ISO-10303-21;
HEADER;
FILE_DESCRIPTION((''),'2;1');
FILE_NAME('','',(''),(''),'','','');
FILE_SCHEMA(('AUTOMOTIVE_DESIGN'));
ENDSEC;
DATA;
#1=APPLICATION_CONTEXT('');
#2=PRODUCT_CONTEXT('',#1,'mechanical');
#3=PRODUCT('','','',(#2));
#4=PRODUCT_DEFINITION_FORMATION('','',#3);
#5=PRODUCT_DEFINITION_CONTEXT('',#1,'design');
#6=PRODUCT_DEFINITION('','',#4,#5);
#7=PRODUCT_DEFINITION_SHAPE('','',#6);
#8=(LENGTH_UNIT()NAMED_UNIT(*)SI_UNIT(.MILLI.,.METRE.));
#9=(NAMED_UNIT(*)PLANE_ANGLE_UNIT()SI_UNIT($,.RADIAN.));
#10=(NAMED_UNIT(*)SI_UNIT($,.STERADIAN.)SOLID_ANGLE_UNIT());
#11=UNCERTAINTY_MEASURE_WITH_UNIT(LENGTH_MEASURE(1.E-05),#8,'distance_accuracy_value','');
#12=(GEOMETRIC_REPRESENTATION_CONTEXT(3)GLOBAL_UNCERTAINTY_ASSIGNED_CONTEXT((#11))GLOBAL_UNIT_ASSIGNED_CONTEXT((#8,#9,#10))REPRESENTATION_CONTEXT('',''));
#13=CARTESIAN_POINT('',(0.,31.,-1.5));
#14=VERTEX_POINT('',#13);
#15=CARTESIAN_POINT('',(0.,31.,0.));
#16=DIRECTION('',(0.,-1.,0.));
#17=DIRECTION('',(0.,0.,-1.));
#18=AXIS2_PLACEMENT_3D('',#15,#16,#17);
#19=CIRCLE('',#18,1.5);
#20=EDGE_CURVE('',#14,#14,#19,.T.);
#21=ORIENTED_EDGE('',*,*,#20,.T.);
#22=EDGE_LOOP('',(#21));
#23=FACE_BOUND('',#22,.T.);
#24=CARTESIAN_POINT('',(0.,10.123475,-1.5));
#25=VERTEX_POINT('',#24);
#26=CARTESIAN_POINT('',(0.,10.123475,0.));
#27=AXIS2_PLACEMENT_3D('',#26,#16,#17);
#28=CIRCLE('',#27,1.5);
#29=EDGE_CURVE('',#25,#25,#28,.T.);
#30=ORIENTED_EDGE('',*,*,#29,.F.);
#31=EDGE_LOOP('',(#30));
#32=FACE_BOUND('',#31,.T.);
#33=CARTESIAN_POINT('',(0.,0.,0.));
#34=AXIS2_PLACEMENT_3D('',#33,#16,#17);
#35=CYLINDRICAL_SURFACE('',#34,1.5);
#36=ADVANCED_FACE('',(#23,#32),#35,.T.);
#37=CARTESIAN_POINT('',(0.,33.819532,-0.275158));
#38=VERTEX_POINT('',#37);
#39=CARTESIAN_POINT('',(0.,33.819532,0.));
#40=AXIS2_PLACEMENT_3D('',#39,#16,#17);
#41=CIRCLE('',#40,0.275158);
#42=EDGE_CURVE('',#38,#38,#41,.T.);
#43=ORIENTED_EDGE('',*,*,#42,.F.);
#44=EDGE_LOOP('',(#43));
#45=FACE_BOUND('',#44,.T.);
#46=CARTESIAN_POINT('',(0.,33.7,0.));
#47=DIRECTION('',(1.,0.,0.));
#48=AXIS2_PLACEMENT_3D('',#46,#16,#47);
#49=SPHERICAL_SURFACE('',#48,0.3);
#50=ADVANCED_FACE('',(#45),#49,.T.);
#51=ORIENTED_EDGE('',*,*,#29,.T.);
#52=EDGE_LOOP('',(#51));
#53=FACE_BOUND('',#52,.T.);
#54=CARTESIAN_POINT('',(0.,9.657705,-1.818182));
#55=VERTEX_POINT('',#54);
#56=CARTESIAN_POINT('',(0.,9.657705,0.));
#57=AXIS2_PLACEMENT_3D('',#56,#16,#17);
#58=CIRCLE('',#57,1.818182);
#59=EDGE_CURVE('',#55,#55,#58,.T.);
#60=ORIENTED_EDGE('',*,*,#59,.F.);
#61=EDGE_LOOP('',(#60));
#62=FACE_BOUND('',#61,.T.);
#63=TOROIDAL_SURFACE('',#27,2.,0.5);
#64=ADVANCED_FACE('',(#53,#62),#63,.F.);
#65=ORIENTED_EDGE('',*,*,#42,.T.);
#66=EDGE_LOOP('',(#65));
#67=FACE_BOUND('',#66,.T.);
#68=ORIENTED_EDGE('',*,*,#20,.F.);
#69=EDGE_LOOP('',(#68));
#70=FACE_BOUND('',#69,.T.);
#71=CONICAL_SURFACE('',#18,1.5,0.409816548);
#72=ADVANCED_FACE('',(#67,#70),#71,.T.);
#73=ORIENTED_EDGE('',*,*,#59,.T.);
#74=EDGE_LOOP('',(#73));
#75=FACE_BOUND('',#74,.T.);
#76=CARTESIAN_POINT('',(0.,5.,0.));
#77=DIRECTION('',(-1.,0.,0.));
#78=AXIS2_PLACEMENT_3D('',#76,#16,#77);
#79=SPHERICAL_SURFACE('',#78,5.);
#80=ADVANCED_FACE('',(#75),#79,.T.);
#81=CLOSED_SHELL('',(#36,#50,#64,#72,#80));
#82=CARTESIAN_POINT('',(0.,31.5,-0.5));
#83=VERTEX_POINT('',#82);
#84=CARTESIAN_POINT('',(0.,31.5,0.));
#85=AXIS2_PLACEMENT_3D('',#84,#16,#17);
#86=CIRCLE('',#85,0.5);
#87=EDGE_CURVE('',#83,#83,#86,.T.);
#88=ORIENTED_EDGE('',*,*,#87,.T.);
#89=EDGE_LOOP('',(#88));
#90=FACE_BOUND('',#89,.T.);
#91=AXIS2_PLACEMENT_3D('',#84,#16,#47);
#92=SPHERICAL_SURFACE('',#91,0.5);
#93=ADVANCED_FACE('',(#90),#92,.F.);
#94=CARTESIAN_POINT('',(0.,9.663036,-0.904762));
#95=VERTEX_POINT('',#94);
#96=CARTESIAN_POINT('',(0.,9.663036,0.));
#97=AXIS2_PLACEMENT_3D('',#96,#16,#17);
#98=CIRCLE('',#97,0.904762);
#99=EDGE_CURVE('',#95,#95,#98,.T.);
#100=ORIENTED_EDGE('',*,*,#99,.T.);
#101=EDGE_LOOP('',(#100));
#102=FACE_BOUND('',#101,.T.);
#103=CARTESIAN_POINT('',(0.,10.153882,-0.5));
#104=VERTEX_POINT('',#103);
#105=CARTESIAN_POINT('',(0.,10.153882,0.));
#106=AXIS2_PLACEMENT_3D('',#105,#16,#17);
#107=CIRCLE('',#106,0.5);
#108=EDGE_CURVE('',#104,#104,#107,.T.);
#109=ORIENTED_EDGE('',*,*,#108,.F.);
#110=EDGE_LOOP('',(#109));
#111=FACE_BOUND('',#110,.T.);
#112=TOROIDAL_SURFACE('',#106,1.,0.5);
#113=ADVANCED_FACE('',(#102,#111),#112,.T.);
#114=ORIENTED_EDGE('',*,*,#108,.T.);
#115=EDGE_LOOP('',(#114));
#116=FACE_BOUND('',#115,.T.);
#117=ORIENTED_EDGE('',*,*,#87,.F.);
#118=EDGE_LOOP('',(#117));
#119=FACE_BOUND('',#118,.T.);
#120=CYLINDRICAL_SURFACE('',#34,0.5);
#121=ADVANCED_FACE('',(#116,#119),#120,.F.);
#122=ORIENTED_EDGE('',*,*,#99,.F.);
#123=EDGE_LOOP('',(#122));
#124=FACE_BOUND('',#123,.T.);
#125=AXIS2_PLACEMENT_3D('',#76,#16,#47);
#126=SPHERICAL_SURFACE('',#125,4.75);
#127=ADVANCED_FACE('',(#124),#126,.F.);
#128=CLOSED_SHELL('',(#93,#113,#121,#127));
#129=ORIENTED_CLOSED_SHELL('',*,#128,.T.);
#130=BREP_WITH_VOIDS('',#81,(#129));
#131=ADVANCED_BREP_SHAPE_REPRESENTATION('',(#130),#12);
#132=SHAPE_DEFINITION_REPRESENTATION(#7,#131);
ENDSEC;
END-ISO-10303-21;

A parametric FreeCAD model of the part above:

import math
import FreeCAD as App
import Part
import Sketcher
from FreeCAD import Vector

doc = App.newDocument("Part")
params = doc.addObject("Spreadsheet::Sheet", "Params")
for row, (alias, value) in enumerate([
    ("sketch1_radius", "5 mm"),
    ("sketch1_radius2", "0.3 mm"),
    ("sketch1_radius3", "0.5 mm"),
    ("sketch1_height", "2 mm"),
    ("sketch1_radius4", "4.75 mm"),
    ("revolution_angle", "360 deg"),
], start=1):
    params.set(f"A{row}", alias)
    params.set(f"B{row}", "=" + value)
    params.setAlias(f"B{row}", alias)

body = doc.addObject("PartDesign::Body", "Body")

# Sketch on XY plane
sketch1 = body.newObject("Sketcher::SketchObject", "Sketch")
sketch1.AttachmentSupport = (doc.getObject("XY_Plane"), [""])
sketch1.MapMode = "FlatFace"
sketch1.addGeometry([
    Part.LineSegment(Vector(1.5, 31, 0), Vector(0.28, 33.82, 0)),  # 0
    Part.ArcOfCircle(Part.Circle(Vector(0, 33.7, 0), Vector(0, 0, 1), 0.3), math.radians(23), math.radians(90)),  # 1
    Part.LineSegment(Vector(0, 34, 0), Vector(0, 32, 0)),  # 2
    Part.ArcOfCircle(Part.Circle(Vector(0, 31.5, 0), Vector(0, 0, 1), 0.5), math.radians(0), math.radians(90)),  # 3
    Part.LineSegment(Vector(0.5, 31.5, 0), Vector(0.5, 10.15, 0)),  # 4
    Part.ArcOfCircle(Part.Circle(Vector(1, 10.15, 0), Vector(0, 0, 1), 0.5), math.radians(180), math.radians(259)),  # 5
    Part.ArcOfCircle(Part.Circle(Vector(0, 5, 0), Vector(0, 0, 1), 4.75), math.radians(-90), math.radians(79)),  # 6
    Part.LineSegment(Vector(0, 0.25, 0), Vector(0, 0, 0)),  # 7
    Part.ArcOfCircle(Part.Circle(Vector(0, 5, 0), Vector(0, 0, 1), 5), math.radians(-90), math.radians(69)),  # 8
    Part.ArcOfCircle(Part.Circle(Vector(2, 10.12, 0), Vector(0, 0, 1), 0.5), math.radians(180), math.radians(249)),  # 9
    Part.LineSegment(Vector(1.5, 10.12, 0), Vector(1.5, 31, 0)),  # 10
], False)
sketch1.addConstraint([
    Sketcher.Constraint("Tangent", 0, 2, 1, 1),
    Sketcher.Constraint("Coincident", 1, 2, 2, 1),
    Sketcher.Constraint("Coincident", 2, 2, 3, 2),
    Sketcher.Constraint("Tangent", 3, 1, 4, 1),
    Sketcher.Constraint("Tangent", 4, 2, 5, 1),
    Sketcher.Constraint("Tangent", 5, 2, 6, 2),
    Sketcher.Constraint("Coincident", 6, 1, 7, 1),
    Sketcher.Constraint("Coincident", 7, 2, 8, 1),
    Sketcher.Constraint("Tangent", 8, 2, 9, 2),
    Sketcher.Constraint("Tangent", 9, 1, 10, 1),
    Sketcher.Constraint("Coincident", 10, 2, 0, 1),
    Sketcher.Constraint("Vertical", 2),
    Sketcher.Constraint("Vertical", 4),
    Sketcher.Constraint("Vertical", 7),
    Sketcher.Constraint("Vertical", 10),
    Sketcher.Constraint("Coincident", 7, 2, -1, 1),
    Sketcher.Constraint("Coincident", 8, 3, 6, 3),
    Sketcher.Constraint("Equal", 3, 5),
    Sketcher.Constraint("Equal", 5, 9),
    Sketcher.Constraint("PointOnObject", 1, 3, -2),
    Sketcher.Constraint("PointOnObject", 3, 3, -2),
    Sketcher.Constraint("PointOnObject", 6, 3, -2),
    Sketcher.Constraint("PointOnObject", 1, 2, -2),
    Sketcher.Constraint("Radius", 8, 5.0),
    Sketcher.Constraint("Radius", 1, 0.3),
    Sketcher.Constraint("Radius", 3, 0.5),
    Sketcher.Constraint("DistanceY", 2, 2, 2, 1, 2.0),
    Sketcher.Constraint("Radius", 6, 4.75),
    Sketcher.Constraint("DistanceX", -1, 1, 9, 3, 2.0),
    Sketcher.Constraint("DistanceY", -1, 1, 1, 2, 34.0),
    Sketcher.Constraint("DistanceY", -1, 1, 10, 2, 31.0),
])
sketch1.setExpression("Constraints[23]", "Params.sketch1_radius")
sketch1.setExpression("Constraints[24]", "Params.sketch1_radius2")
sketch1.setExpression("Constraints[25]", "Params.sketch1_radius3")
sketch1.setExpression("Constraints[26]", "Params.sketch1_height")
sketch1.setExpression("Constraints[27]", "Params.sketch1_radius4")
revolution = body.newObject("PartDesign::Revolution", "Revolution")
revolution.Profile = sketch1
revolution.ReferenceAxis = (sketch1, ["V_Axis"])
revolution.setExpression("Angle", "Params.revolution_angle")

doc.recompute()
